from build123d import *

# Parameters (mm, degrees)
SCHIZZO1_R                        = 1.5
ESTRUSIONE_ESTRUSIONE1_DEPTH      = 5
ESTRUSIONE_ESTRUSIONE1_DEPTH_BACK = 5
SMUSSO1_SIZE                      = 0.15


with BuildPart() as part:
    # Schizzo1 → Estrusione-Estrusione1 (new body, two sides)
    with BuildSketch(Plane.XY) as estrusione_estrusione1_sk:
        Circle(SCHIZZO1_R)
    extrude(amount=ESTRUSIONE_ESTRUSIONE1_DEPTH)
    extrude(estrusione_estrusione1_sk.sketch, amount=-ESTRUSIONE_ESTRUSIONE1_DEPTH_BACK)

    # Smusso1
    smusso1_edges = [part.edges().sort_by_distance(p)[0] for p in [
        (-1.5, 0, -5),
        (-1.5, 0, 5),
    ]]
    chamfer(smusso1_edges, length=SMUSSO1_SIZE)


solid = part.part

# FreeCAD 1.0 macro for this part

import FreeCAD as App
import Part
import Sketcher
from FreeCAD import Vector
Q = App.Units.Quantity


def edges_at(feature, points):
    """Names of the edges that pass closest to the given points."""
    edges = feature.Shape.Edges
    near = lambda p: min(range(len(edges)), key=lambda i: edges[i].distToShape(Part.Vertex(*p))[0])
    return sorted({f"Edge{near(p) + 1}" for p in points})

doc = App.newDocument("Part")
body = doc.addObject("PartDesign::Body", "Body")

# Sketch on XY plane
sketch1 = body.newObject("Sketcher::SketchObject", "Sketch")
sketch1.AttachmentSupport = (doc.getObject("XY_Plane"), [""])
sketch1.MapMode = "FlatFace"
sketch1.addGeometry(Part.Circle(Vector(0, 0, 0), Vector(0, 0, 1), 1.5), False)
sketch1.addConstraint(Sketcher.Constraint("Coincident", 0, 3, -1, 1))
sketch1.addConstraint(Sketcher.Constraint("Diameter", 0, Q("3 mm")))
pad1 = body.newObject("PartDesign::Pad", "Pad")
pad1.Profile = sketch1
pad1.Type = "TwoLengths"
pad1.Length = 5
pad1.Length2 = 5
doc.recompute()

chamfer = body.newObject("PartDesign::Chamfer", "Chamfer")
chamfer.Base = (pad1, edges_at(pad1, [(-1.5, 0, -5), (-1.5, 0, 5)]))
chamfer.Size = 0.15

doc.recompute()
